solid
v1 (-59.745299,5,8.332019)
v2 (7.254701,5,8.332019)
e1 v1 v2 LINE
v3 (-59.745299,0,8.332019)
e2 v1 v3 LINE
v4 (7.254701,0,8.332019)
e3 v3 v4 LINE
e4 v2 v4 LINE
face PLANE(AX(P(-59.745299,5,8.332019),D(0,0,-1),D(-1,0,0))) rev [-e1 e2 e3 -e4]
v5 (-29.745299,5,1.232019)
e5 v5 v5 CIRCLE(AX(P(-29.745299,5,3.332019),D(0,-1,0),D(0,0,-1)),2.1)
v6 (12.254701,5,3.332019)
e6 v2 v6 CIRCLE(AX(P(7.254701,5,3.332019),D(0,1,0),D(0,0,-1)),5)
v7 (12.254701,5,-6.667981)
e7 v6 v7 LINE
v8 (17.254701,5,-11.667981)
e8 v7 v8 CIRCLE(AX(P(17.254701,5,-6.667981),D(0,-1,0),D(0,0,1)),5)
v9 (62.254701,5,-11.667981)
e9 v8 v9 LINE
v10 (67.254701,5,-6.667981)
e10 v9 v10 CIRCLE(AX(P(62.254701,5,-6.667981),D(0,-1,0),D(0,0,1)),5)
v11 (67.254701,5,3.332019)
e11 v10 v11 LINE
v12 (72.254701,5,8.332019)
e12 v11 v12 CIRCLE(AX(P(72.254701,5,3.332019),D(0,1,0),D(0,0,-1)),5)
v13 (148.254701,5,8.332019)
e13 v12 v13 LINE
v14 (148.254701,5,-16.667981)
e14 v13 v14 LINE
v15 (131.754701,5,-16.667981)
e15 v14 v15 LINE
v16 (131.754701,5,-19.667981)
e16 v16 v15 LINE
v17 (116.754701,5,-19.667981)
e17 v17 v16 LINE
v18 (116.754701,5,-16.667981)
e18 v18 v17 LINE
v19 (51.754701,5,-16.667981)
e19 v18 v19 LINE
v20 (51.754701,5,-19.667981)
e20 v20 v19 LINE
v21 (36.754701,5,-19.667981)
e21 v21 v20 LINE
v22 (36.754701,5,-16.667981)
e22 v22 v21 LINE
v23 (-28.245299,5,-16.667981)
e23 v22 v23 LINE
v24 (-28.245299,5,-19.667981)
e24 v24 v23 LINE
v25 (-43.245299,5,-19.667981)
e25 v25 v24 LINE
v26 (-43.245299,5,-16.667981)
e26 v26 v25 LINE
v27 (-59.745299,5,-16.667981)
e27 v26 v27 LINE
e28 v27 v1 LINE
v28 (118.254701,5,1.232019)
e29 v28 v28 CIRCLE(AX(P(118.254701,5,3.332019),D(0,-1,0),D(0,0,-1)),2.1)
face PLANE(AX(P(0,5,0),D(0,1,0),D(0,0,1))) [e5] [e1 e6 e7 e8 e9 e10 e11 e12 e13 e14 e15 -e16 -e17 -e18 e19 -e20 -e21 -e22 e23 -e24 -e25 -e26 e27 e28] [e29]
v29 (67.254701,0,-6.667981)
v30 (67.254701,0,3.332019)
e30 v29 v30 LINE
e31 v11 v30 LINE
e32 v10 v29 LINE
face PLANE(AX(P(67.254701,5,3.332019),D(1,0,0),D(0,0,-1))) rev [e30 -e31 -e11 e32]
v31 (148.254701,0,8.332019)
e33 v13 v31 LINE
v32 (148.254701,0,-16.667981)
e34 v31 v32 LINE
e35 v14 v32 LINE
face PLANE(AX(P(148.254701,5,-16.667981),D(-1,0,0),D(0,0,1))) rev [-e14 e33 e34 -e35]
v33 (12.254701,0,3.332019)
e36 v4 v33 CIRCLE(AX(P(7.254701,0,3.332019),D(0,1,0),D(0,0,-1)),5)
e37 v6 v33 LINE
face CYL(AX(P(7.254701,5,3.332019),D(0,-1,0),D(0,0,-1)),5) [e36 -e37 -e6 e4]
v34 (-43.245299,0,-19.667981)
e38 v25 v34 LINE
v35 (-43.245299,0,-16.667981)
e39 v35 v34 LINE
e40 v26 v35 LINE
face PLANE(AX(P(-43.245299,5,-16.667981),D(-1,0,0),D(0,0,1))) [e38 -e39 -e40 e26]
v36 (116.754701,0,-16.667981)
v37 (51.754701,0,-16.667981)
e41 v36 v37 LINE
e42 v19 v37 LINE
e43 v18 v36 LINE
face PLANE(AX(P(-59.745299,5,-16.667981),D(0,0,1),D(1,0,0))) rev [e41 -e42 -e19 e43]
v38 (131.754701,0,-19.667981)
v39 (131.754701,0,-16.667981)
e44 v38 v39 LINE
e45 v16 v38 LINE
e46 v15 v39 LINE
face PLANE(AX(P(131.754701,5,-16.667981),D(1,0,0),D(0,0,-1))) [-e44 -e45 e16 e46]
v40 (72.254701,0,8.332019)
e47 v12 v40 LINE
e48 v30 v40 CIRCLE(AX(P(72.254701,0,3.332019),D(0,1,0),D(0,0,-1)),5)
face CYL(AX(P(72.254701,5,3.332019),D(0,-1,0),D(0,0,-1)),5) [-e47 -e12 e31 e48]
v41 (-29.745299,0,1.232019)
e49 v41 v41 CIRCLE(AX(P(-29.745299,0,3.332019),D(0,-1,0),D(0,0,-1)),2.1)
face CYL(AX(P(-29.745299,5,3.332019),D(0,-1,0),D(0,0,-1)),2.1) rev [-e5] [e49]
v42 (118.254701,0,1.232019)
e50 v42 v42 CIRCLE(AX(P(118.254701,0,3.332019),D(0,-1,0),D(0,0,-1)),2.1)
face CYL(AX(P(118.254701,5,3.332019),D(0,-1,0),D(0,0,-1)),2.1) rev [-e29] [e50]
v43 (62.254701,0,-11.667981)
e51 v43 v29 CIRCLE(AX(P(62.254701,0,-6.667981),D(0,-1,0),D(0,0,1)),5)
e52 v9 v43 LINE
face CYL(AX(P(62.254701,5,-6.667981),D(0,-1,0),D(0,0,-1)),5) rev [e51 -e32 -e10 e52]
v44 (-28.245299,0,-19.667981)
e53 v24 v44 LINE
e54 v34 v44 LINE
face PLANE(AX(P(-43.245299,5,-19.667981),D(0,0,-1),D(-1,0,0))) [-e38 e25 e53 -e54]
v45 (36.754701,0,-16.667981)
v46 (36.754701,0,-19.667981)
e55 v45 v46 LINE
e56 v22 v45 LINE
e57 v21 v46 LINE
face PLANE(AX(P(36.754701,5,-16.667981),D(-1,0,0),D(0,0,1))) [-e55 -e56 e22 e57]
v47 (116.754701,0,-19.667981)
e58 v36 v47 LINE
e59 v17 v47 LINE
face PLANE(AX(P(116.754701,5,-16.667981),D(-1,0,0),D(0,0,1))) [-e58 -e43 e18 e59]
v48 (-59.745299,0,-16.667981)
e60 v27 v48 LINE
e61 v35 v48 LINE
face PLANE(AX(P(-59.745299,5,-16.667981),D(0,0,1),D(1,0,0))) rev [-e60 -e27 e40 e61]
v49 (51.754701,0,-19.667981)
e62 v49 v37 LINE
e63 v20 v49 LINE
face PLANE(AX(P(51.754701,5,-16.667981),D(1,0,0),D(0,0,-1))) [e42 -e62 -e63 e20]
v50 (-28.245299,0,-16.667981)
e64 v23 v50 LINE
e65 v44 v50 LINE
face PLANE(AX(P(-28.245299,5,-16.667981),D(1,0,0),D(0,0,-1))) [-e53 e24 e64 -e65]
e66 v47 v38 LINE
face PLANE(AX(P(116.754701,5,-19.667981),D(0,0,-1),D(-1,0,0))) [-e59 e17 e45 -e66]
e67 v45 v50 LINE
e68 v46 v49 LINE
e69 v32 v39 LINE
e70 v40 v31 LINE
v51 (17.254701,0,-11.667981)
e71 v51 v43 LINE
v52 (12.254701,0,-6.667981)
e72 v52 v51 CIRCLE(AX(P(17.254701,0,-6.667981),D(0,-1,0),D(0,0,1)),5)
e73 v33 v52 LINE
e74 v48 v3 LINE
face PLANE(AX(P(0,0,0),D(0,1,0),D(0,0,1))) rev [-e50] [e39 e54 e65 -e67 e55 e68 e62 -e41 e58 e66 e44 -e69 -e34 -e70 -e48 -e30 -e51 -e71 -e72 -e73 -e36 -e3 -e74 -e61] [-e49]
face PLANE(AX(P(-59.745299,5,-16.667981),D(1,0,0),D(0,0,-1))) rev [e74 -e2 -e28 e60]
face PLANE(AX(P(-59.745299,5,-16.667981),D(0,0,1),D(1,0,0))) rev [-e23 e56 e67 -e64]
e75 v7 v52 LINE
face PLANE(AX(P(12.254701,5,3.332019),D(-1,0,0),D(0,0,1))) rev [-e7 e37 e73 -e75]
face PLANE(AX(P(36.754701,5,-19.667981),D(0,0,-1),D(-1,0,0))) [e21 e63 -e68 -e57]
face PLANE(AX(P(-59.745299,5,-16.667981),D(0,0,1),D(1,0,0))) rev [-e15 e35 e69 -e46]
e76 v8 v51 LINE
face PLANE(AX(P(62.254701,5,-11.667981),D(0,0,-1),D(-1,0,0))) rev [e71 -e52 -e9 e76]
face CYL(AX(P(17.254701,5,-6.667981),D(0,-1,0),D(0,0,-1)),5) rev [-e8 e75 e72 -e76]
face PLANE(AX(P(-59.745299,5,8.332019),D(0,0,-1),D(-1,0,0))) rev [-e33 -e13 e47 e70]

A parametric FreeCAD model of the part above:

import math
import FreeCAD as App
import Part
import Sketcher

doc = App.newDocument("Part")
body = doc.addObject("PartDesign::Body", "Body")

sketch1 = body.newObject("Sketcher::SketchObject", "Sketch")
sketch1.AttachmentSupport = (doc.getObject("XZ_Plane"), [""])
sketch1.MapMode = "FlatFace"
sketch1.addGeometry([
    Part.LineSegment(App.Vector(-60, -17, 0), App.Vector(-60, 8, 0)),
    Part.LineSegment(App.Vector(-60, 8, 0), App.Vector(148, 8, 0)),
    Part.LineSegment(App.Vector(148, 8, 0), App.Vector(148, -17, 0)),
    Part.LineSegment(App.Vector(148, -17, 0), App.Vector(-60, -17, 0)),
], False)
sketch1.addConstraint([
    Sketcher.Constraint("Coincident", 0, 2, 1, 1),
    Sketcher.Constraint("Coincident", 1, 2, 2, 1),
    Sketcher.Constraint("Coincident", 2, 2, 3, 1),
    Sketcher.Constraint("Coincident", 3, 2, 0, 1),
    Sketcher.Constraint("Vertical", 0),
    Sketcher.Constraint("Horizontal", 1),
    Sketcher.Constraint("Vertical", 2),
    Sketcher.Constraint("Horizontal", 3),
    Sketcher.Constraint("DistanceX", 1, 1, 1, 2, 208.0),
    Sketcher.Constraint("DistanceY", 0, 1, 0, 2, 25.0),
    Sketcher.Constraint("DistanceX", 0, 2, -1, 1, 59.745299),
    Sketcher.Constraint("DistanceY", -1, 1, 0, 2, 8.332019),
])
pad1 = body.newObject("PartDesign::Pad", "Pad")
pad1.Profile = sketch1
pad1.Length = 5
pad1.Reversed = True

sketch2 = body.newObject("Sketcher::SketchObject", "Sketch001")
sketch2.AttachmentSupport = (doc.getObject("XZ_Plane"), [""])
sketch2.MapMode = "FlatFace"
sketch2.addGeometry([
    Part.LineSegment(App.Vector(72, 8, 0), App.Vector(7, 8, 0)),
    Part.ArcOfCircle(Part.Circle(App.Vector(7, 3, 0), App.Vector(0, 0, 1), 5), math.radians(0), math.radians(90)),
    Part.LineSegment(App.Vector(12, 3, 0), App.Vector(12, -7, 0)),
    Part.ArcOfCircle(Part.Circle(App.Vector(17, -7, 0), App.Vector(0, 0, 1), 5), math.radians(180), math.radians(270)),
    Part.LineSegment(App.Vector(17, -12, 0), App.Vector(62, -12, 0)),
    Part.ArcOfCircle(Part.Circle(App.Vector(62, -7, 0), App.Vector(0, 0, 1), 5), math.radians(-90), math.radians(0)),
    Part.LineSegment(App.Vector(67, -7, 0), App.Vector(67, 3, 0)),
    Part.ArcOfCircle(Part.Circle(App.Vector(72, 3, 0), App.Vector(0, 0, 1), 5), math.radians(90), math.radians(180)),
], False)
sketch2.addConstraint([
    Sketcher.Constraint("Tangent", 0, 2, 1, 2),
    Sketcher.Constraint("Tangent", 1, 1, 2, 1),
    Sketcher.Constraint("Tangent", 2, 2, 3, 1),
    Sketcher.Constraint("Tangent", 3, 2, 4, 1),
    Sketcher.Constraint("Tangent", 4, 2, 5, 1),
    Sketcher.Constraint("Tangent", 5, 2, 6, 1),
    Sketcher.Constraint("Tangent", 6, 2, 7, 2),
    Sketcher.Constraint("Tangent", 7, 1, 0, 1),
    Sketcher.Constraint("Horizontal", 0),
    Sketcher.Constraint("Vertical", 2),
    Sketcher.Constraint("Horizontal", 4),
    Sketcher.Constraint("Vertical", 6),
    Sketcher.Constraint("Equal", 1, 3),
    Sketcher.Constraint("Equal", 3, 5),
    Sketcher.Constraint("Equal", 5, 7),
    Sketcher.Constraint("Radius", 1, 5.0),
    Sketcher.Constraint("DistanceX", 0, 2, 0, 1, 65.0),
    Sketcher.Constraint("DistanceY", 2, 2, 2, 1, 10.0),
    Sketcher.Constraint("DistanceX", -1, 1, 1, 3, 7.254701),
    Sketcher.Constraint("DistanceY", -1, 1, 1, 3, 3.332019),
])
pocket1 = body.newObject("PartDesign::Pocket", "Pocket")
pocket1.Profile = sketch2
pocket1.Type = "ThroughAll"

sketch3 = body.newObject("Sketcher::SketchObject", "Sketch002")
sketch3.AttachmentSupport = (doc.getObject("XZ_Plane"), [""])
sketch3.MapMode = "FlatFace"
sketch3.addGeometry([
    Part.Circle(App.Vector(-29.7, 3.3, 0), App.Vector(0, 0, 1), 2.1),
    Part.Circle(App.Vector(118.3, 3.3, 0), App.Vector(0, 0, 1), 2.1),
], False)
sketch3.addConstraint([
    Sketcher.Constraint("Equal", 0, 1),
    Sketcher.Constraint("Horizontal", 0, 3, 1, 3),
    Sketcher.Constraint("Diameter", 0, 4.2),
    Sketcher.Constraint("DistanceX", 0, 3, 1, 3, 148.0),
    Sketcher.Constraint("DistanceX", 0, 3, -1, 1, 29.745299),
    Sketcher.Constraint("DistanceY", -1, 1, 0, 3, 3.332019),
])
pocket2 = body.newObject("PartDesign::Pocket", "Pocket001")
pocket2.Profile = sketch3
pocket2.Type = "ThroughAll"

sketch4 = body.newObject("Sketcher::SketchObject", "Sketch003")
sketch4.AttachmentSupport = (doc.getObject("XZ_Plane"), [""])
sketch4.MapMode = "FlatFace"
sketch4.addGeometry([
    Part.LineSegment(App.Vector(116.8, -16.7, 0), App.Vector(116.8, -19.7, 0)),
    Part.LineSegment(App.Vector(116.8, -19.7, 0), App.Vector(131.8, -19.7, 0)),
    Part.LineSegment(App.Vector(131.8, -19.7, 0), App.Vector(131.8, -16.7, 0)),
    Part.LineSegment(App.Vector(131.8, -16.7, 0), App.Vector(116.8, -16.7, 0)),
    Part.LineSegment(App.Vector(36.8, -16.7, 0), App.Vector(36.8, -19.7, 0)),
    Part.LineSegment(App.Vector(36.8, -19.7, 0), App.Vector(51.8, -19.7, 0)),
    Part.LineSegment(App.Vector(51.8, -19.7, 0), App.Vector(51.8, -16.7, 0)),
    Part.LineSegment(App.Vector(51.8, -16.7, 0), App.Vector(36.8, -16.7, 0)),
    Part.LineSegment(App.Vector(-43.2, -16.7, 0), App.Vector(-43.2, -19.7, 0)),
    Part.LineSegment(App.Vector(-43.2, -19.7, 0), App.Vector(-28.2, -19.7, 0)),
    Part.LineSegment(App.Vector(-28.2, -19.7, 0), App.Vector(-28.2, -16.7, 0)),
    Part.LineSegment(App.Vector(-28.2, -16.7, 0), App.Vector(-43.2, -16.7, 0)),
], False)
sketch4.addConstraint([
    Sketcher.Constraint("Coincident", 0, 2, 1, 1),
    Sketcher.Constraint("Coincident", 1, 2, 2, 1),
    Sketcher.Constraint("Coincident", 2, 2, 3, 1),
    Sketcher.Constraint("Coincident", 3, 2, 0, 1),
    Sketcher.Constraint("Coincident", 4, 2, 5, 1),
    Sketcher.Constraint("Coincident", 5, 2, 6, 1),
    Sketcher.Constraint("Coincident", 6, 2, 7, 1),
    Sketcher.Constraint("Coincident", 7, 2, 4, 1),
    Sketcher.Constraint("Coincident", 8, 2, 9, 1),
    Sketcher.Constraint("Coincident", 9, 2, 10, 1),
    Sketcher.Constraint("Coincident", 10, 2, 11, 1),
    Sketcher.Constraint("Coincident", 11, 2, 8, 1),
    Sketcher.Constraint("Vertical", 0),
    Sketcher.Constraint("Horizontal", 1),
    Sketcher.Constraint("Vertical", 2),
    Sketcher.Constraint("Horizontal", 3),
    Sketcher.Constraint("Vertical", 4),
    Sketcher.Constraint("Horizontal", 5),
    Sketcher.Constraint("Vertical", 6),
    Sketcher.Constraint("Horizontal", 7),
    Sketcher.Constraint("Vertical", 8),
    Sketcher.Constraint("Horizontal", 9),
    Sketcher.Constraint("Vertical", 10),
    Sketcher.Constraint("Horizontal", 11),
    Sketcher.Constraint("Horizontal", 1, 2, 4, 2),
    Sketcher.Constraint("Horizontal", 3, 2, 6, 2),
    Sketcher.Constraint("Horizontal", 5, 2, 8, 2),
    Sketcher.Constraint("Horizontal", 7, 2, 10, 2),
    Sketcher.Constraint("Equal", 3, 5),
    Sketcher.Constraint("Equal", 7, 9),
    Sketcher.Constraint("DistanceX", 1, 1, 1, 2, 15.0),
    Sketcher.Constraint("DistanceY", 0, 2, 0, 1, 3.0),
    Sketcher.Constraint("DistanceX", 4, 2, 0, 2, 80.0),
    Sketcher.Constraint("DistanceX", 8, 2, 4, 2, 80.0),
    Sketcher.Constraint("DistanceX", -1, 1, 0, 2, 116.754701),
    Sketcher.Constraint("DistanceY", 0, 2, -1, 1, 19.667981),
])
pad2 = body.newObject("PartDesign::Pad", "Pad001")
pad2.Profile = sketch4
pad2.Length = 5
pad2.Reversed = True

doc.recompute()
